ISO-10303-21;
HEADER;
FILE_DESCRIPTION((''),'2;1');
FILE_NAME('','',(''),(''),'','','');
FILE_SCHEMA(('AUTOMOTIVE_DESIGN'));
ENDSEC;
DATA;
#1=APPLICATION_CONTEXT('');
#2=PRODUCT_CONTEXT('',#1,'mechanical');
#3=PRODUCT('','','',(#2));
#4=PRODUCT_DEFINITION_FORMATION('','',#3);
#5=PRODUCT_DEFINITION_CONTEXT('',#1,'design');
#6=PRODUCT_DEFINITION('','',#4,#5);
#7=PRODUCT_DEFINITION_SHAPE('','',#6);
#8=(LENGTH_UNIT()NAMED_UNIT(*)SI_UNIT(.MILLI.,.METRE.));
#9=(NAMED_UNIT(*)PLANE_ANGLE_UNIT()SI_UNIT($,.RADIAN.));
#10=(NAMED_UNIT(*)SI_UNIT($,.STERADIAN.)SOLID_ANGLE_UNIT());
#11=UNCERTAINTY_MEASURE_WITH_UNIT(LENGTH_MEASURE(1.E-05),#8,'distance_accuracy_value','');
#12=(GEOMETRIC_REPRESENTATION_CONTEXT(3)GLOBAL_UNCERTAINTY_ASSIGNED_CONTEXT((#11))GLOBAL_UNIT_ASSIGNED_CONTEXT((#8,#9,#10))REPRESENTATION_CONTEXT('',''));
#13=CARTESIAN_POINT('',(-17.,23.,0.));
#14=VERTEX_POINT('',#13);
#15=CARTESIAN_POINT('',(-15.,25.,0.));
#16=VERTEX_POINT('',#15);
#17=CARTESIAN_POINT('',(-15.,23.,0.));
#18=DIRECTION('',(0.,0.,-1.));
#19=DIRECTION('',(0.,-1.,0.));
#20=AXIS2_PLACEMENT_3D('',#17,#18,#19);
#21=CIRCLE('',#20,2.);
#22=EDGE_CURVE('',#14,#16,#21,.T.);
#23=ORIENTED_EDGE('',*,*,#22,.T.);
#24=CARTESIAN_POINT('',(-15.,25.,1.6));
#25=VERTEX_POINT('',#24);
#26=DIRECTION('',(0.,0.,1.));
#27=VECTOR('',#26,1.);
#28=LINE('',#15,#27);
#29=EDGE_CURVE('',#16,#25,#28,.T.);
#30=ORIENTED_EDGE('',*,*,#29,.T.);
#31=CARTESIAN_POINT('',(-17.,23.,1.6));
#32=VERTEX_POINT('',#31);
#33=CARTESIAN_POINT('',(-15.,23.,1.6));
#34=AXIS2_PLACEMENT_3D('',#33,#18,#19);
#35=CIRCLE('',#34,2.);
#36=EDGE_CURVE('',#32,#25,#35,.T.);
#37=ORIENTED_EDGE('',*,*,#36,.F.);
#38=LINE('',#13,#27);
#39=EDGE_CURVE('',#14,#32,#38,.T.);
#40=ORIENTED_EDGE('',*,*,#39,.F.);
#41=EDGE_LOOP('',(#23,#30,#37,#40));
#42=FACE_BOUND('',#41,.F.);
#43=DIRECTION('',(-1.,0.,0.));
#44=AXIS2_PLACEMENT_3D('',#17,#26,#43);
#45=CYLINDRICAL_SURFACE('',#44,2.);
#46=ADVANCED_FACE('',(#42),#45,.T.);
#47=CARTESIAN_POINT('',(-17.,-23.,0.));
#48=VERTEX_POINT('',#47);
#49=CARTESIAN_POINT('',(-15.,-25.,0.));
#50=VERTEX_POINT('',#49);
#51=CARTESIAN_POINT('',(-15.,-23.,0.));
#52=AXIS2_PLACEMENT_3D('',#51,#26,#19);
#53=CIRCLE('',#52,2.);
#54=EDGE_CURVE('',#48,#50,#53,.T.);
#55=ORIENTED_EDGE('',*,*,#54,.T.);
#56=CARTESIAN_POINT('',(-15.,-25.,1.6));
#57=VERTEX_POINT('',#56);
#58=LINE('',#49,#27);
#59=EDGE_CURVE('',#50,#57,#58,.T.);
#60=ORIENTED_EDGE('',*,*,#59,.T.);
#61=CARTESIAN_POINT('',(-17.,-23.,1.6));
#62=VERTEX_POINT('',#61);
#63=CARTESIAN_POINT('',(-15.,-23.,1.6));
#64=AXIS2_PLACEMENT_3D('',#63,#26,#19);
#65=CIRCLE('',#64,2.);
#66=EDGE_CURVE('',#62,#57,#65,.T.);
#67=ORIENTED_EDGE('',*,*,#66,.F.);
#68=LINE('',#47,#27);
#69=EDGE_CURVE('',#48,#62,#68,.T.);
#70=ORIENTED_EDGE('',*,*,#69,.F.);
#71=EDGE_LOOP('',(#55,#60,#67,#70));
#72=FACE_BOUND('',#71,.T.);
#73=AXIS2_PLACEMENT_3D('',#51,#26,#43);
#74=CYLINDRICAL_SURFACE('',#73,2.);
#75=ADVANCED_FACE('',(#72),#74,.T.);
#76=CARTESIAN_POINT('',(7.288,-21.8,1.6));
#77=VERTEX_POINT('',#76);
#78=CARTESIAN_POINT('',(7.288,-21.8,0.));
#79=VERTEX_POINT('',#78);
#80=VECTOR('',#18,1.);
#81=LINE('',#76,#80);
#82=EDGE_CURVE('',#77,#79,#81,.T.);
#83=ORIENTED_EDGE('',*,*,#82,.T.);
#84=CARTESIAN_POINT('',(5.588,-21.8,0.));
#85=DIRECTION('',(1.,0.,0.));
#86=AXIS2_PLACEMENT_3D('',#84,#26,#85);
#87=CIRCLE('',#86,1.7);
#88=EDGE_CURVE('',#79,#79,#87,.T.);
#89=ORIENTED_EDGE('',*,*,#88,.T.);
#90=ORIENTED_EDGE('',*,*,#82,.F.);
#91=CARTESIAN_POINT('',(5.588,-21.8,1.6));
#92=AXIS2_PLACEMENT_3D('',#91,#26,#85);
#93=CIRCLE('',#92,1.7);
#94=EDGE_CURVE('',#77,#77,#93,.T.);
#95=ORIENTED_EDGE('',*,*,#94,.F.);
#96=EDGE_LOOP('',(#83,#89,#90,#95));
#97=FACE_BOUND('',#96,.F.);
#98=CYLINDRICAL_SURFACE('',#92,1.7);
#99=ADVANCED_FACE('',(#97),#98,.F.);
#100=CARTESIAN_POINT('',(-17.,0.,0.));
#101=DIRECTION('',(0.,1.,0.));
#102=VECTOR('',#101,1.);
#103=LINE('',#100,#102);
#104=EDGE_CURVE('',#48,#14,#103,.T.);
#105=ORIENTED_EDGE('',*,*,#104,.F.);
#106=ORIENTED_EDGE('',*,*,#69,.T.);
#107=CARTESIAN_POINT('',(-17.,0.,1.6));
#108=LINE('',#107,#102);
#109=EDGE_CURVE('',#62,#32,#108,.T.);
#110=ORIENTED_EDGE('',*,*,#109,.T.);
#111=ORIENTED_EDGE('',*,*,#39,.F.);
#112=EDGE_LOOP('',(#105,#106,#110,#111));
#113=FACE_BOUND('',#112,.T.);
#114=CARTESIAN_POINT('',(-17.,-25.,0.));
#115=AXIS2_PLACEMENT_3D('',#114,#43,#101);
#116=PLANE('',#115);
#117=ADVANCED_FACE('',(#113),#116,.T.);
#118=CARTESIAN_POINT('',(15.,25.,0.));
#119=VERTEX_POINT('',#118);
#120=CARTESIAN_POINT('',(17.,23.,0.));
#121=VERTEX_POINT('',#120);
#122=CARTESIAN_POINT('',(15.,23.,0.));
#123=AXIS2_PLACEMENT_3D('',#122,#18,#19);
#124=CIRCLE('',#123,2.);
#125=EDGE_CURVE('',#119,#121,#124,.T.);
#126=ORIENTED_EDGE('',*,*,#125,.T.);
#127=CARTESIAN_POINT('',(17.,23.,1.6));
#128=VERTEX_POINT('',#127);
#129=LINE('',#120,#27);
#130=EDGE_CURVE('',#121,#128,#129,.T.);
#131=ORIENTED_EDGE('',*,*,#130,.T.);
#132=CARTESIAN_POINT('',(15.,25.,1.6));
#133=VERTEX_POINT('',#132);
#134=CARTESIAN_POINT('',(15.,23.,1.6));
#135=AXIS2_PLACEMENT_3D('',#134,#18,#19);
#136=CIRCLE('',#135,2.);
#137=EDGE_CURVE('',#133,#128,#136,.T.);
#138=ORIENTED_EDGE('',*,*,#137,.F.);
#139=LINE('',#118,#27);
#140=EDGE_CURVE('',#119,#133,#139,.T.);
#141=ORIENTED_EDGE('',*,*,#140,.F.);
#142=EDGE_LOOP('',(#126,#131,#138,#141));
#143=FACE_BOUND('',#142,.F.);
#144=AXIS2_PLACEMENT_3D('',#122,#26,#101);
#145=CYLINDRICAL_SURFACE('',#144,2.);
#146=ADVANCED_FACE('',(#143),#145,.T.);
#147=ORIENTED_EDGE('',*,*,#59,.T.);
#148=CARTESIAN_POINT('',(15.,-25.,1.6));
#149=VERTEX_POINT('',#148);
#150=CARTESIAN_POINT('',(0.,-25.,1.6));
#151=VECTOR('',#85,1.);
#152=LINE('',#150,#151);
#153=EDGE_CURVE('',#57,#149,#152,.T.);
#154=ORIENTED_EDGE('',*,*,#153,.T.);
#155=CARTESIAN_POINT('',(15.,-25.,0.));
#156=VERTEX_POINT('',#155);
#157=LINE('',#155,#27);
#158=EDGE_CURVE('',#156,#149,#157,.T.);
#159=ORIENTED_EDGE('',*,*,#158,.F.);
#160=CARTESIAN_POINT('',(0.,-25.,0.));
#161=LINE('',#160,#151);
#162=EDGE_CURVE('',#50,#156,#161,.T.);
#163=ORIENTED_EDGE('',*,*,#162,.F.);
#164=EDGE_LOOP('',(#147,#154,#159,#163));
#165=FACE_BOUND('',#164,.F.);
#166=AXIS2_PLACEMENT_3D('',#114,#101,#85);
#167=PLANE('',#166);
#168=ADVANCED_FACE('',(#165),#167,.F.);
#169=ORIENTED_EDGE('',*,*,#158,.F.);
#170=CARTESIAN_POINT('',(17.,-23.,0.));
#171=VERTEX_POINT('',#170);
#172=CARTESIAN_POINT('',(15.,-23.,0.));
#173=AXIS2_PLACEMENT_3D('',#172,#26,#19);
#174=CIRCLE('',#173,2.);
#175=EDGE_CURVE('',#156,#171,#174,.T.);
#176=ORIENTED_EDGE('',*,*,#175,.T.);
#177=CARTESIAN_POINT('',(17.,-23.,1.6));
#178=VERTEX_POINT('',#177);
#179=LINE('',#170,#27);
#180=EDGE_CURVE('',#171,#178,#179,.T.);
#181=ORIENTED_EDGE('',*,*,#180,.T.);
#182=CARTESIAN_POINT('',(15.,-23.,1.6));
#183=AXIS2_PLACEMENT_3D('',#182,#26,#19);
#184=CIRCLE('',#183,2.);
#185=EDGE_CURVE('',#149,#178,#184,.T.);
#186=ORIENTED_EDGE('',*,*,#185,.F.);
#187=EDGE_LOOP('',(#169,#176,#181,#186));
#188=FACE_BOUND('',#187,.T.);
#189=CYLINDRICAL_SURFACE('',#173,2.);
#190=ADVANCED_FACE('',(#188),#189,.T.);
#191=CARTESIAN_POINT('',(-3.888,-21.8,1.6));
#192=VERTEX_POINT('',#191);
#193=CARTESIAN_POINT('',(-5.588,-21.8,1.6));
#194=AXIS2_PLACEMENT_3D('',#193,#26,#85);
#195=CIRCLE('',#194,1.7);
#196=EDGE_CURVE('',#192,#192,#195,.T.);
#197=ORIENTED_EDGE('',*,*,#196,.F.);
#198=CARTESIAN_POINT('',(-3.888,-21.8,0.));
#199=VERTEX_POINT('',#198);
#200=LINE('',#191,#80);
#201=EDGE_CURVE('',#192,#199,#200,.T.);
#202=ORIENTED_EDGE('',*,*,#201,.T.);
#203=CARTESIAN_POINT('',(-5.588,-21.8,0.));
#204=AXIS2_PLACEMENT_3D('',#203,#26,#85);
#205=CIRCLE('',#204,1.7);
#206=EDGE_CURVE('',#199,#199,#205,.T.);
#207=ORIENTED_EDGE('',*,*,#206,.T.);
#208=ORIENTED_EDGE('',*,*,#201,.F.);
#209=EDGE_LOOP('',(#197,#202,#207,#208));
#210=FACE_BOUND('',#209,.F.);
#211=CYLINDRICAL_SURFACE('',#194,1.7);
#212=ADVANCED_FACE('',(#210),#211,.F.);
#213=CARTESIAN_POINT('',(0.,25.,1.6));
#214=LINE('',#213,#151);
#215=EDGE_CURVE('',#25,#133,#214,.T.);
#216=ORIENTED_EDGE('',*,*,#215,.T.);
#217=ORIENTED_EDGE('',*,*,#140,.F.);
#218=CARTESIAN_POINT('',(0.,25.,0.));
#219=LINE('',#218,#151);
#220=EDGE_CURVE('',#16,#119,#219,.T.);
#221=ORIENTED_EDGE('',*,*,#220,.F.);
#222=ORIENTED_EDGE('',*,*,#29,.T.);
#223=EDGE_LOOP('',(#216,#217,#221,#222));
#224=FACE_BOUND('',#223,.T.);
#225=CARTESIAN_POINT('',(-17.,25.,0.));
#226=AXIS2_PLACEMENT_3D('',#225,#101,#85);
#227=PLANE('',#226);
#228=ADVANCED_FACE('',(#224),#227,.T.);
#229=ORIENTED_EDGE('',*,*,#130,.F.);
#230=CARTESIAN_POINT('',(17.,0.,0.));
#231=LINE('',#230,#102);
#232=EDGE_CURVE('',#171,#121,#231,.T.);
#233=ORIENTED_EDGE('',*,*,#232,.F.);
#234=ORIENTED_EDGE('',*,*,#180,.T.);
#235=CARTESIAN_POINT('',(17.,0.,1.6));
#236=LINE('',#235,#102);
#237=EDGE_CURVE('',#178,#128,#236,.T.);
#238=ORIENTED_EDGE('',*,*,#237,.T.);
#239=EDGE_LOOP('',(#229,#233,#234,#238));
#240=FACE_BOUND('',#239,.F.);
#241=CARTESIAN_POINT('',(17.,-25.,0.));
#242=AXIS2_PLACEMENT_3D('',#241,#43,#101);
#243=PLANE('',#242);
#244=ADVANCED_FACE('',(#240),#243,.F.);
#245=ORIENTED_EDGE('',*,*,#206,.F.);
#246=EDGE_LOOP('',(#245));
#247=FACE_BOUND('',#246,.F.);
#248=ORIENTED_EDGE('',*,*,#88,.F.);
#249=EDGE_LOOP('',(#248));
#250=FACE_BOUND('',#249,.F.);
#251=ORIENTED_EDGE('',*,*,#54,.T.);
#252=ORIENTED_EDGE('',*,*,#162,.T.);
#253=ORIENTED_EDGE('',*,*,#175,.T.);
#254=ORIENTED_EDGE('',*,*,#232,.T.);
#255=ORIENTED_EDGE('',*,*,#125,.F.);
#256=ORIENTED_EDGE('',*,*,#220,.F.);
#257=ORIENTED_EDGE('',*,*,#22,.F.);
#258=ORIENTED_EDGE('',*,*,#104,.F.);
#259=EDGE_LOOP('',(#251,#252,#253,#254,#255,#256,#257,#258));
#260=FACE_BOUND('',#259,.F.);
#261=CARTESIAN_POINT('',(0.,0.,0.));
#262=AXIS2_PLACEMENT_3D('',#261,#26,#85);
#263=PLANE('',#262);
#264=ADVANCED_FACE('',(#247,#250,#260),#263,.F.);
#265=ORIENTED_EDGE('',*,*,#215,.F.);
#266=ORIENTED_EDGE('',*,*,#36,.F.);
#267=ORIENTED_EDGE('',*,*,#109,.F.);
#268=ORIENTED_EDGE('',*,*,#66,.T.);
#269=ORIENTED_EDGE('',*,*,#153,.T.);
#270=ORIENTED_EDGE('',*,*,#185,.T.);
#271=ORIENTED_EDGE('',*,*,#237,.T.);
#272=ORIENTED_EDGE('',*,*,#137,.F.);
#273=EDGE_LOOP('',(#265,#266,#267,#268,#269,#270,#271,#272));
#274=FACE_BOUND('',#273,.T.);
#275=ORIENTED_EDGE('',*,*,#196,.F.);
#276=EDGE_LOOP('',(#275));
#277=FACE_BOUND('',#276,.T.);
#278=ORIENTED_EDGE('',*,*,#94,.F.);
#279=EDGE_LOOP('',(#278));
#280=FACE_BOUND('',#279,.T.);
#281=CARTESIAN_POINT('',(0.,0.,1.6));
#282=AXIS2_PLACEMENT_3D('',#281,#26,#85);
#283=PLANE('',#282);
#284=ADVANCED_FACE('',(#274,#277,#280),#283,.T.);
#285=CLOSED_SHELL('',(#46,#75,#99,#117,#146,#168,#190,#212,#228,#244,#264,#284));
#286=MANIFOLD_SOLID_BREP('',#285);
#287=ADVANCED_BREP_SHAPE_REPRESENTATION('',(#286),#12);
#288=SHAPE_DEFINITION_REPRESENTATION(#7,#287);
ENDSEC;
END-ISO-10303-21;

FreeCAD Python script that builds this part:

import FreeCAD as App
import Part
import Sketcher
Q = App.Units.Quantity


def edges_at(feature, points):
    """Names of the edges that pass closest to the given points."""
    edges = feature.Shape.Edges
    near = lambda p: min(range(len(edges)), key=lambda i: edges[i].distToShape(Part.Vertex(*p))[0])
    return sorted({f"Edge{near(p) + 1}" for p in points})

doc = App.newDocument("Part")
body = doc.addObject("PartDesign::Body", "Body")

sketch1 = doc.addObject("Sketcher::SketchObject", "Sketch")
body.addObject(sketch1)
sketch1.AttachmentSupport = (doc.XY_Plane, [""])
sketch1.MapMode = "FlatFace"
sketch1.addGeometry([
    Part.LineSegment(App.Vector(-17, 25, 0), App.Vector(-17, -25, 0)),
    Part.LineSegment(App.Vector(-17, -25, 0), App.Vector(17, -25, 0)),
    Part.LineSegment(App.Vector(17, -25, 0), App.Vector(17, 25, 0)),
    Part.LineSegment(App.Vector(17, 25, 0), App.Vector(-17, 25, 0)),
], False)
sketch1.addConstraint([
    Sketcher.Constraint("Coincident", 0, 2, 1, 1),
    Sketcher.Constraint("Coincident", 1, 2, 2, 1),
    Sketcher.Constraint("Coincident", 2, 2, 3, 1),
    Sketcher.Constraint("Coincident", 3, 2, 0, 1),
    Sketcher.Constraint("Vertical", 0),
    Sketcher.Constraint("Horizontal", 1),
    Sketcher.Constraint("Vertical", 2),
    Sketcher.Constraint("Horizontal", 3),
    Sketcher.Constraint("Symmetric", 0, 2, 2, 2, -1, 1),
    Sketcher.Constraint("DistanceX", 1, 1, 1, 2, Q("34 mm")),
    Sketcher.Constraint("DistanceY", 0, 2, 0, 1, Q("50 mm")),
])
pad1 = doc.addObject("PartDesign::Pad", "Pad")
body.addObject(pad1)
pad1.Profile = sketch1
pad1.Length = 1.6

sketch2 = doc.addObject("Sketcher::SketchObject", "Sketch001")
body.addObject(sketch2)
sketch2.AttachmentSupport = (doc.XY_Plane, [""])
sketch2.MapMode = "FlatFace"
sketch2.AttachmentOffset = App.Placement(App.Vector(0, 0, 1.6), App.Rotation())
sketch2.addGeometry([
    Part.Circle(App.Vector(-5.6, -21.8, 0), App.Vector(0, 0, 1), 1.7),
    Part.Circle(App.Vector(5.6, -21.8, 0), App.Vector(0, 0, 1), 1.7),
], False)
sketch2.addConstraint([
    Sketcher.Constraint("Equal", 0, 1),
    Sketcher.Constraint("Symmetric", 0, 3, 1, 3, -2),
    Sketcher.Constraint("Diameter", 0, Q("3.4 mm")),
    Sketcher.Constraint("DistanceY", 0, 3, -1, 1, Q("21.8 mm")),
    Sketcher.Constraint("DistanceX", 0, 3, -1, 1, Q("5.588 mm")),
])
pocket1 = doc.addObject("PartDesign::Pocket", "Pocket")
body.addObject(pocket1)
pocket1.Profile = sketch2
pocket1.Length = 25
doc.recompute()

fillet = doc.addObject("PartDesign::Fillet", "Fillet")
body.addObject(fillet)
fillet.Base = (pocket1, edges_at(pocket1, [
    (-17, 25, 0.8),
    (17, 25, 0.8),
    (17, -25, 0.8),
    (-17, -25, 0.8),
]))
fillet.Radius = 2

doc.recompute()
